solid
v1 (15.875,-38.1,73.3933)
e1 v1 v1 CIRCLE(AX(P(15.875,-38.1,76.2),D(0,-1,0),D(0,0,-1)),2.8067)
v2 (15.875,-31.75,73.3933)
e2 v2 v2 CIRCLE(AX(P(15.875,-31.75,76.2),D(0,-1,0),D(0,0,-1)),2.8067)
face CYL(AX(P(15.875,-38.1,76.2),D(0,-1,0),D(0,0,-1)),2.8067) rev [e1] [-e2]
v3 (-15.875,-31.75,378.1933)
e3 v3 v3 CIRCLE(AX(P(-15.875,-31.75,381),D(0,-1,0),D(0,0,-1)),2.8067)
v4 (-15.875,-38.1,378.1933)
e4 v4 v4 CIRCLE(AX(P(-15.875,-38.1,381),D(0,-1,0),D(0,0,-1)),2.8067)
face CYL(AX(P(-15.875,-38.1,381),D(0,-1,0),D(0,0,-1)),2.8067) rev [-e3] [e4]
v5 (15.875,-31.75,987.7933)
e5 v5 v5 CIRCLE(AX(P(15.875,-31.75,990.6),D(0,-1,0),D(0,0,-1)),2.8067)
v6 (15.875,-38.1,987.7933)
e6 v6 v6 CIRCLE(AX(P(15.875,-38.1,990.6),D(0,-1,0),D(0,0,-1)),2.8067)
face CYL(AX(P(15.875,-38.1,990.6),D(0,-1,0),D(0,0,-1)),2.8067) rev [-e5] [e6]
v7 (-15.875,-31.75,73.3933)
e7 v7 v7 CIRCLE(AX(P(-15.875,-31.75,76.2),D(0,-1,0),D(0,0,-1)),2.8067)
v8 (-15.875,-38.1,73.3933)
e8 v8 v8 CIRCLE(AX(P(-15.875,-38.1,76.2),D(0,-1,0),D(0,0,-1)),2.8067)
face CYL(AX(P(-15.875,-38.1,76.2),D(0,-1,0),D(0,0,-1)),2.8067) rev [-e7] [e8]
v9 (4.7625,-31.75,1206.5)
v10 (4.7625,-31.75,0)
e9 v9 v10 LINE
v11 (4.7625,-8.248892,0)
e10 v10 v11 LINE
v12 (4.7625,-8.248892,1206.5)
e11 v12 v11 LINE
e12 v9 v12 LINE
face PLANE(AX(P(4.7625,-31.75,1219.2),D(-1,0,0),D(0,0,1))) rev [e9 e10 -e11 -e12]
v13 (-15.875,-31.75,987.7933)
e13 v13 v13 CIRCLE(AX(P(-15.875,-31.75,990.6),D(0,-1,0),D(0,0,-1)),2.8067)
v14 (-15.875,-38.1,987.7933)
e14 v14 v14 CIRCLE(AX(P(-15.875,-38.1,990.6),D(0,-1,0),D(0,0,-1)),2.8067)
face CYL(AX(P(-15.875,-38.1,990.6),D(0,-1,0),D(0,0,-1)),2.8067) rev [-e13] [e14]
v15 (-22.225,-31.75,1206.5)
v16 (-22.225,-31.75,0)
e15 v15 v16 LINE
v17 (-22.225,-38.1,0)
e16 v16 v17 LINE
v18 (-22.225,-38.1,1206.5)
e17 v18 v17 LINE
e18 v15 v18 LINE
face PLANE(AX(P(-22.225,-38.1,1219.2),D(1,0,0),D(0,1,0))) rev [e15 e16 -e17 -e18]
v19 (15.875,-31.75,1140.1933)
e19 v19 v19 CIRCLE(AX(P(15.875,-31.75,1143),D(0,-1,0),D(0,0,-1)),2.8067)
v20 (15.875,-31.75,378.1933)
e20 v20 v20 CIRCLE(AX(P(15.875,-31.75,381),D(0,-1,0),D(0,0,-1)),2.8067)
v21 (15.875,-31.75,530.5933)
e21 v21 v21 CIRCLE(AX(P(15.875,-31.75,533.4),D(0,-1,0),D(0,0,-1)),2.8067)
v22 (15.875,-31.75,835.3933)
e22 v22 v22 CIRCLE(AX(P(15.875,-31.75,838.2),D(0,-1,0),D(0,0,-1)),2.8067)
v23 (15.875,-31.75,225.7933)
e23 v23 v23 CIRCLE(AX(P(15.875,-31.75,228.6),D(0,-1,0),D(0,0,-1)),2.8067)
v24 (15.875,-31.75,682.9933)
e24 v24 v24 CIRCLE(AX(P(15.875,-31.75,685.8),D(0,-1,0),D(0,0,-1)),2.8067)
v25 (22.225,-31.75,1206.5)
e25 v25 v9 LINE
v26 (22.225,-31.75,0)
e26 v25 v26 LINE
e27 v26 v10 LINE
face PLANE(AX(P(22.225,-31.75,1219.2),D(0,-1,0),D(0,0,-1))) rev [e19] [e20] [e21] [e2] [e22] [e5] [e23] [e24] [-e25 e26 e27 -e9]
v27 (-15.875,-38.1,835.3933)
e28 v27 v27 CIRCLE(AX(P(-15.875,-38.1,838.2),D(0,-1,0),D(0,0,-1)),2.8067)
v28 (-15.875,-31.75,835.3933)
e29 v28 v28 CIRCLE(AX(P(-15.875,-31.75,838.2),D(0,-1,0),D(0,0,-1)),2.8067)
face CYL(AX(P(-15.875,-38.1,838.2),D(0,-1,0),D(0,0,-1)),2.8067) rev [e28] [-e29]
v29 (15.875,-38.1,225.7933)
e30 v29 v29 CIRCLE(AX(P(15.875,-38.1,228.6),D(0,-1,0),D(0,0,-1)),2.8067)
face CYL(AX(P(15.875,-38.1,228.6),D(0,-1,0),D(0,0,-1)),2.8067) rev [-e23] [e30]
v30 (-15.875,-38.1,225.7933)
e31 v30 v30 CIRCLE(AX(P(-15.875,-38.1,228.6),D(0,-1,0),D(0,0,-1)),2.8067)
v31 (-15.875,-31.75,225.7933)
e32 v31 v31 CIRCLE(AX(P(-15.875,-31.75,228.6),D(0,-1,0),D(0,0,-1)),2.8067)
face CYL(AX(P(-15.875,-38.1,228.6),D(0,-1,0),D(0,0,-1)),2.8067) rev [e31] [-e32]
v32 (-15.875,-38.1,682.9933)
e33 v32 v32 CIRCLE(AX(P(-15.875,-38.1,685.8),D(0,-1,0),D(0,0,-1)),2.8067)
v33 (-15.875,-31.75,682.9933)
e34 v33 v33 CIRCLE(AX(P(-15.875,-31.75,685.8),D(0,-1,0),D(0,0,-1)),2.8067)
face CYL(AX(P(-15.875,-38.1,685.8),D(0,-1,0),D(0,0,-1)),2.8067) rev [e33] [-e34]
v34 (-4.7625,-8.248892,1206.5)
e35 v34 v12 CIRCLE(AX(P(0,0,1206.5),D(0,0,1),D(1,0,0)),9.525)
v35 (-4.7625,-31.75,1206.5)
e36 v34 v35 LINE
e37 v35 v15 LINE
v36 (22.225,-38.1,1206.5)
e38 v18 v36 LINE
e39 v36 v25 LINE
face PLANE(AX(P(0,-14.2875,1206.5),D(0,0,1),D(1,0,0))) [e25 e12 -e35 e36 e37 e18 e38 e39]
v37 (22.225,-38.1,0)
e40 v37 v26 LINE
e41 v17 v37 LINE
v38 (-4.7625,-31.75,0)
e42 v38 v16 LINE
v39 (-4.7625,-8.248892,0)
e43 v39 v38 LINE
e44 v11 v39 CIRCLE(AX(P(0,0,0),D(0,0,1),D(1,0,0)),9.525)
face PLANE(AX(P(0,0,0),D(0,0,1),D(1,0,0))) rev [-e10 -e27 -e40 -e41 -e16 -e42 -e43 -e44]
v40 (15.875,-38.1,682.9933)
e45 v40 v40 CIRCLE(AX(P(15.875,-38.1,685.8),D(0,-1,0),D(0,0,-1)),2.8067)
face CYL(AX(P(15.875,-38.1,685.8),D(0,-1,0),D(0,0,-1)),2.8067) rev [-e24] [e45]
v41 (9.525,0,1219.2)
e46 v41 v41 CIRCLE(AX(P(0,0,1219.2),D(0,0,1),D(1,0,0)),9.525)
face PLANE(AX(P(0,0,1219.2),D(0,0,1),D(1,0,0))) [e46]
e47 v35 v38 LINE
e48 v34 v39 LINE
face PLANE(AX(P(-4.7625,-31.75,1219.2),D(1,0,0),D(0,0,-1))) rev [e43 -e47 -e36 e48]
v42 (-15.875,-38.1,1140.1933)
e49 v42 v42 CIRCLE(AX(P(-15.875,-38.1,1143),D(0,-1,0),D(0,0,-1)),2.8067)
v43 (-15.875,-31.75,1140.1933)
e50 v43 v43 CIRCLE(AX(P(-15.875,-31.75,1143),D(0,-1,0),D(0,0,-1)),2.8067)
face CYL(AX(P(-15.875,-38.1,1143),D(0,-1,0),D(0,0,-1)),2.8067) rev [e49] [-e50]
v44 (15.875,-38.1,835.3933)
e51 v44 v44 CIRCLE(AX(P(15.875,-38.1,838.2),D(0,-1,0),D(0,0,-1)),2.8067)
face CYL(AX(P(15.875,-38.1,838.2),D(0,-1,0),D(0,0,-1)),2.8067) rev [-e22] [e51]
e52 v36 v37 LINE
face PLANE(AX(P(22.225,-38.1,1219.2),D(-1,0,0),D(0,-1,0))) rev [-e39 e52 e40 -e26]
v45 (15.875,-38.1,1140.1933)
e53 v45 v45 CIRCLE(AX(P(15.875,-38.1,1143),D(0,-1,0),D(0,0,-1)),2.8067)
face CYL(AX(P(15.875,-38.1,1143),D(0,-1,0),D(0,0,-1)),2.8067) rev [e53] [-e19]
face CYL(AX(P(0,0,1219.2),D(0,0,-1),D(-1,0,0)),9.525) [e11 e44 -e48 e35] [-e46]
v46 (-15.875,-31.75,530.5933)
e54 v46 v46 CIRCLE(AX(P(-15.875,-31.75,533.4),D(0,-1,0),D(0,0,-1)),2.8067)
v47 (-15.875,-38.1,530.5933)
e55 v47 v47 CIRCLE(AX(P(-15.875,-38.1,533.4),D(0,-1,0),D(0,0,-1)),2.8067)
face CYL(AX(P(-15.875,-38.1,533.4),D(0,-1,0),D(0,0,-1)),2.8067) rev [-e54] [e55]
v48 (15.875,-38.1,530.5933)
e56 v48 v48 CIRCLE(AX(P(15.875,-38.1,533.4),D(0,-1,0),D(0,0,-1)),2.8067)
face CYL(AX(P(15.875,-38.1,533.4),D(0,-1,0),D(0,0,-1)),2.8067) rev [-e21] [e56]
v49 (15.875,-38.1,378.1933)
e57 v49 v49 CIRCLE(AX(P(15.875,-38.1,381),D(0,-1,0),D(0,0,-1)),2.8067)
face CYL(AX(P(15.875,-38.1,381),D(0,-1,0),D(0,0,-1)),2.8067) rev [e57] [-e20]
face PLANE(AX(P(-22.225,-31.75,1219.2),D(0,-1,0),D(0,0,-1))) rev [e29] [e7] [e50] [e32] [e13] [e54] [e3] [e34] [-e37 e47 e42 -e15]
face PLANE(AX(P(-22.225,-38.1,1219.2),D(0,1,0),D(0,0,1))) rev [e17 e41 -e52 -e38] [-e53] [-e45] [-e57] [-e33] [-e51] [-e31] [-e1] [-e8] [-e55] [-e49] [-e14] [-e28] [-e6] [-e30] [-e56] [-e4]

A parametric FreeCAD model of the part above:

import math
import FreeCAD as App
import Part
import Sketcher
Q = App.Units.Quantity

doc = App.newDocument("Part")
body = doc.addObject("PartDesign::Body", "Body")

sketch1 = doc.addObject("Sketcher::SketchObject", "Sketch")
body.addObject(sketch1)
sketch1.AttachmentSupport = (doc.XY_Plane, [""])
sketch1.MapMode = "FlatFace"
sketch1.addGeometry([
    Part.LineSegment(App.Vector(-22, -38, 0), App.Vector(22, -38, 0)),
    Part.LineSegment(App.Vector(22, -38, 0), App.Vector(22, -32, 0)),
    Part.LineSegment(App.Vector(22, -32, 0), App.Vector(5, -32, 0)),
    Part.LineSegment(App.Vector(5, -32, 0), App.Vector(5, -8, 0)),
    Part.ArcOfCircle(Part.Circle(App.Vector(0, 0, 0), App.Vector(0, 0, 1), 10), math.radians(-60), math.radians(240)),
    Part.LineSegment(App.Vector(-5, -8, 0), App.Vector(-5, -32, 0)),
    Part.LineSegment(App.Vector(-5, -32, 0), App.Vector(-22, -32, 0)),
    Part.LineSegment(App.Vector(-22, -32, 0), App.Vector(-22, -38, 0)),
], False)
sketch1.addConstraint([
    Sketcher.Constraint("Coincident", 0, 2, 1, 1),
    Sketcher.Constraint("Coincident", 1, 2, 2, 1),
    Sketcher.Constraint("Coincident", 2, 2, 3, 1),
    Sketcher.Constraint("Coincident", 3, 2, 4, 1),
    Sketcher.Constraint("Coincident", 4, 2, 5, 1),
    Sketcher.Constraint("Coincident", 5, 2, 6, 1),
    Sketcher.Constraint("Coincident", 6, 2, 7, 1),
    Sketcher.Constraint("Coincident", 7, 2, 0, 1),
    Sketcher.Constraint("Horizontal", 0),
    Sketcher.Constraint("Vertical", 1),
    Sketcher.Constraint("Horizontal", 2),
    Sketcher.Constraint("Vertical", 3),
    Sketcher.Constraint("Vertical", 5),
    Sketcher.Constraint("Horizontal", 6),
    Sketcher.Constraint("Vertical", 7),
    Sketcher.Constraint("Coincident", 4, 3, -1, 1),
    Sketcher.Constraint("Symmetric", 2, 2, 5, 2, -2),
    Sketcher.Constraint("Equal", 2, 6),
    Sketcher.Constraint("Radius", 4, Q("0.375 in")),
    Sketcher.Constraint("DistanceX", 0, 1, 0, 2, Q("1.75 in")),
    Sketcher.Constraint("DistanceY", 1, 1, 1, 2, Q("0.25 in")),
    Sketcher.Constraint("DistanceY", 0, 2, -1, 1, Q("1.5 in")),
    Sketcher.Constraint("DistanceX", 2, 2, 2, 1, Q("0.6875 in")),
])
pad1 = doc.addObject("PartDesign::Pad", "Pad")
body.addObject(pad1)
pad1.Profile = sketch1
pad1.Length = Q("48 in")

sketch2 = doc.addObject("Sketcher::SketchObject", "Sketch001")
body.addObject(sketch2)
sketch2.AttachmentSupport = (doc.XZ_Plane, [""])
sketch2.MapMode = "FlatFace"
sketch2.AttachmentOffset = App.Placement(App.Vector(0, 0, 1.5 * 25.4), App.Rotation())
sketch2.addGeometry([
    Part.Circle(App.Vector(-15.9, 76.2, 0), App.Vector(0, 0, 1), 2.8),
    Part.Circle(App.Vector(15.9, 76.2, 0), App.Vector(0, 0, 1), 2.8),
], False)
sketch2.addConstraint([
    Sketcher.Constraint("Equal", 0, 1),
    Sketcher.Constraint("Symmetric", 0, 3, 1, 3, -2),
    Sketcher.Constraint("Diameter", 0, Q("0.221 in")),
    Sketcher.Constraint("DistanceY", -1, 1, 0, 3, Q("3 in")),
    Sketcher.Constraint("DistanceX", 0, 3, 1, 3, Q("1.25 in")),
])
doc.recompute()
hole = doc.addObject("PartDesign::Hole", "Hole")
body.addObject(hole)
hole.Profile = sketch2
hole.ThreadType = "None"
hole.Diameter = Q("0.221 in")
hole.DepthType = "ThroughAll"
doc.recompute()

linearpattern = doc.addObject("PartDesign::LinearPattern", "LinearPattern")
body.addObject(linearpattern)
linearpattern.Originals = [hole]
linearpattern.Direction = (doc.Z_Axis, [""])
linearpattern.Mode = "offset"
linearpattern.Offset = Q("6 in")
linearpattern.Occurrences = 8
body.Tip = linearpattern

sketch3 = doc.addObject("Sketcher::SketchObject", "Sketch002")
body.addObject(sketch3)
sketch3.AttachmentSupport = (doc.XY_Plane, [""])
sketch3.MapMode = "FlatFace"
sketch3.AttachmentOffset = App.Placement(App.Vector(0, 0, 48 * 25.4), App.Rotation())
sketch3.addGeometry([
    Part.LineSegment(App.Vector(-145, 133, 0), App.Vector(-145, -161, 0)),
    Part.LineSegment(App.Vector(-145, -161, 0), App.Vector(145, -161, 0)),
    Part.LineSegment(App.Vector(145, -161, 0), App.Vector(145, 133, 0)),
    Part.LineSegment(App.Vector(145, 133, 0), App.Vector(-145, 133, 0)),
    Part.Circle(App.Vector(0, 0, 0), App.Vector(0, 0, 1), 10),
], False)
sketch3.addConstraint([
    Sketcher.Constraint("Coincident", 0, 2, 1, 1),
    Sketcher.Constraint("Coincident", 1, 2, 2, 1),
    Sketcher.Constraint("Coincident", 2, 2, 3, 1),
    Sketcher.Constraint("Coincident", 3, 2, 0, 1),
    Sketcher.Constraint("Vertical", 0),
    Sketcher.Constraint("Horizontal", 1),
    Sketcher.Constraint("Vertical", 2),
    Sketcher.Constraint("Horizontal", 3),
    Sketcher.Constraint("Coincident", 4, 3, -1, 1),
    Sketcher.Constraint("Diameter", 4, Q("0.75 in")),
    Sketcher.Constraint("DistanceX", 1, 1, 1, 2, 290.638),
    Sketcher.Constraint("DistanceY", 0, 2, 0, 1, 293.813),
    Sketcher.Constraint("DistanceX", 0, 2, -1, 1, 145.319),
    Sketcher.Constraint("DistanceY", 0, 2, -1, 1, 161.194),
])
pocket1 = doc.addObject("PartDesign::Pocket", "Pocket")
body.addObject(pocket1)
pocket1.Profile = sketch3
pocket1.Length = Q("0.5 in")

doc.recompute()
